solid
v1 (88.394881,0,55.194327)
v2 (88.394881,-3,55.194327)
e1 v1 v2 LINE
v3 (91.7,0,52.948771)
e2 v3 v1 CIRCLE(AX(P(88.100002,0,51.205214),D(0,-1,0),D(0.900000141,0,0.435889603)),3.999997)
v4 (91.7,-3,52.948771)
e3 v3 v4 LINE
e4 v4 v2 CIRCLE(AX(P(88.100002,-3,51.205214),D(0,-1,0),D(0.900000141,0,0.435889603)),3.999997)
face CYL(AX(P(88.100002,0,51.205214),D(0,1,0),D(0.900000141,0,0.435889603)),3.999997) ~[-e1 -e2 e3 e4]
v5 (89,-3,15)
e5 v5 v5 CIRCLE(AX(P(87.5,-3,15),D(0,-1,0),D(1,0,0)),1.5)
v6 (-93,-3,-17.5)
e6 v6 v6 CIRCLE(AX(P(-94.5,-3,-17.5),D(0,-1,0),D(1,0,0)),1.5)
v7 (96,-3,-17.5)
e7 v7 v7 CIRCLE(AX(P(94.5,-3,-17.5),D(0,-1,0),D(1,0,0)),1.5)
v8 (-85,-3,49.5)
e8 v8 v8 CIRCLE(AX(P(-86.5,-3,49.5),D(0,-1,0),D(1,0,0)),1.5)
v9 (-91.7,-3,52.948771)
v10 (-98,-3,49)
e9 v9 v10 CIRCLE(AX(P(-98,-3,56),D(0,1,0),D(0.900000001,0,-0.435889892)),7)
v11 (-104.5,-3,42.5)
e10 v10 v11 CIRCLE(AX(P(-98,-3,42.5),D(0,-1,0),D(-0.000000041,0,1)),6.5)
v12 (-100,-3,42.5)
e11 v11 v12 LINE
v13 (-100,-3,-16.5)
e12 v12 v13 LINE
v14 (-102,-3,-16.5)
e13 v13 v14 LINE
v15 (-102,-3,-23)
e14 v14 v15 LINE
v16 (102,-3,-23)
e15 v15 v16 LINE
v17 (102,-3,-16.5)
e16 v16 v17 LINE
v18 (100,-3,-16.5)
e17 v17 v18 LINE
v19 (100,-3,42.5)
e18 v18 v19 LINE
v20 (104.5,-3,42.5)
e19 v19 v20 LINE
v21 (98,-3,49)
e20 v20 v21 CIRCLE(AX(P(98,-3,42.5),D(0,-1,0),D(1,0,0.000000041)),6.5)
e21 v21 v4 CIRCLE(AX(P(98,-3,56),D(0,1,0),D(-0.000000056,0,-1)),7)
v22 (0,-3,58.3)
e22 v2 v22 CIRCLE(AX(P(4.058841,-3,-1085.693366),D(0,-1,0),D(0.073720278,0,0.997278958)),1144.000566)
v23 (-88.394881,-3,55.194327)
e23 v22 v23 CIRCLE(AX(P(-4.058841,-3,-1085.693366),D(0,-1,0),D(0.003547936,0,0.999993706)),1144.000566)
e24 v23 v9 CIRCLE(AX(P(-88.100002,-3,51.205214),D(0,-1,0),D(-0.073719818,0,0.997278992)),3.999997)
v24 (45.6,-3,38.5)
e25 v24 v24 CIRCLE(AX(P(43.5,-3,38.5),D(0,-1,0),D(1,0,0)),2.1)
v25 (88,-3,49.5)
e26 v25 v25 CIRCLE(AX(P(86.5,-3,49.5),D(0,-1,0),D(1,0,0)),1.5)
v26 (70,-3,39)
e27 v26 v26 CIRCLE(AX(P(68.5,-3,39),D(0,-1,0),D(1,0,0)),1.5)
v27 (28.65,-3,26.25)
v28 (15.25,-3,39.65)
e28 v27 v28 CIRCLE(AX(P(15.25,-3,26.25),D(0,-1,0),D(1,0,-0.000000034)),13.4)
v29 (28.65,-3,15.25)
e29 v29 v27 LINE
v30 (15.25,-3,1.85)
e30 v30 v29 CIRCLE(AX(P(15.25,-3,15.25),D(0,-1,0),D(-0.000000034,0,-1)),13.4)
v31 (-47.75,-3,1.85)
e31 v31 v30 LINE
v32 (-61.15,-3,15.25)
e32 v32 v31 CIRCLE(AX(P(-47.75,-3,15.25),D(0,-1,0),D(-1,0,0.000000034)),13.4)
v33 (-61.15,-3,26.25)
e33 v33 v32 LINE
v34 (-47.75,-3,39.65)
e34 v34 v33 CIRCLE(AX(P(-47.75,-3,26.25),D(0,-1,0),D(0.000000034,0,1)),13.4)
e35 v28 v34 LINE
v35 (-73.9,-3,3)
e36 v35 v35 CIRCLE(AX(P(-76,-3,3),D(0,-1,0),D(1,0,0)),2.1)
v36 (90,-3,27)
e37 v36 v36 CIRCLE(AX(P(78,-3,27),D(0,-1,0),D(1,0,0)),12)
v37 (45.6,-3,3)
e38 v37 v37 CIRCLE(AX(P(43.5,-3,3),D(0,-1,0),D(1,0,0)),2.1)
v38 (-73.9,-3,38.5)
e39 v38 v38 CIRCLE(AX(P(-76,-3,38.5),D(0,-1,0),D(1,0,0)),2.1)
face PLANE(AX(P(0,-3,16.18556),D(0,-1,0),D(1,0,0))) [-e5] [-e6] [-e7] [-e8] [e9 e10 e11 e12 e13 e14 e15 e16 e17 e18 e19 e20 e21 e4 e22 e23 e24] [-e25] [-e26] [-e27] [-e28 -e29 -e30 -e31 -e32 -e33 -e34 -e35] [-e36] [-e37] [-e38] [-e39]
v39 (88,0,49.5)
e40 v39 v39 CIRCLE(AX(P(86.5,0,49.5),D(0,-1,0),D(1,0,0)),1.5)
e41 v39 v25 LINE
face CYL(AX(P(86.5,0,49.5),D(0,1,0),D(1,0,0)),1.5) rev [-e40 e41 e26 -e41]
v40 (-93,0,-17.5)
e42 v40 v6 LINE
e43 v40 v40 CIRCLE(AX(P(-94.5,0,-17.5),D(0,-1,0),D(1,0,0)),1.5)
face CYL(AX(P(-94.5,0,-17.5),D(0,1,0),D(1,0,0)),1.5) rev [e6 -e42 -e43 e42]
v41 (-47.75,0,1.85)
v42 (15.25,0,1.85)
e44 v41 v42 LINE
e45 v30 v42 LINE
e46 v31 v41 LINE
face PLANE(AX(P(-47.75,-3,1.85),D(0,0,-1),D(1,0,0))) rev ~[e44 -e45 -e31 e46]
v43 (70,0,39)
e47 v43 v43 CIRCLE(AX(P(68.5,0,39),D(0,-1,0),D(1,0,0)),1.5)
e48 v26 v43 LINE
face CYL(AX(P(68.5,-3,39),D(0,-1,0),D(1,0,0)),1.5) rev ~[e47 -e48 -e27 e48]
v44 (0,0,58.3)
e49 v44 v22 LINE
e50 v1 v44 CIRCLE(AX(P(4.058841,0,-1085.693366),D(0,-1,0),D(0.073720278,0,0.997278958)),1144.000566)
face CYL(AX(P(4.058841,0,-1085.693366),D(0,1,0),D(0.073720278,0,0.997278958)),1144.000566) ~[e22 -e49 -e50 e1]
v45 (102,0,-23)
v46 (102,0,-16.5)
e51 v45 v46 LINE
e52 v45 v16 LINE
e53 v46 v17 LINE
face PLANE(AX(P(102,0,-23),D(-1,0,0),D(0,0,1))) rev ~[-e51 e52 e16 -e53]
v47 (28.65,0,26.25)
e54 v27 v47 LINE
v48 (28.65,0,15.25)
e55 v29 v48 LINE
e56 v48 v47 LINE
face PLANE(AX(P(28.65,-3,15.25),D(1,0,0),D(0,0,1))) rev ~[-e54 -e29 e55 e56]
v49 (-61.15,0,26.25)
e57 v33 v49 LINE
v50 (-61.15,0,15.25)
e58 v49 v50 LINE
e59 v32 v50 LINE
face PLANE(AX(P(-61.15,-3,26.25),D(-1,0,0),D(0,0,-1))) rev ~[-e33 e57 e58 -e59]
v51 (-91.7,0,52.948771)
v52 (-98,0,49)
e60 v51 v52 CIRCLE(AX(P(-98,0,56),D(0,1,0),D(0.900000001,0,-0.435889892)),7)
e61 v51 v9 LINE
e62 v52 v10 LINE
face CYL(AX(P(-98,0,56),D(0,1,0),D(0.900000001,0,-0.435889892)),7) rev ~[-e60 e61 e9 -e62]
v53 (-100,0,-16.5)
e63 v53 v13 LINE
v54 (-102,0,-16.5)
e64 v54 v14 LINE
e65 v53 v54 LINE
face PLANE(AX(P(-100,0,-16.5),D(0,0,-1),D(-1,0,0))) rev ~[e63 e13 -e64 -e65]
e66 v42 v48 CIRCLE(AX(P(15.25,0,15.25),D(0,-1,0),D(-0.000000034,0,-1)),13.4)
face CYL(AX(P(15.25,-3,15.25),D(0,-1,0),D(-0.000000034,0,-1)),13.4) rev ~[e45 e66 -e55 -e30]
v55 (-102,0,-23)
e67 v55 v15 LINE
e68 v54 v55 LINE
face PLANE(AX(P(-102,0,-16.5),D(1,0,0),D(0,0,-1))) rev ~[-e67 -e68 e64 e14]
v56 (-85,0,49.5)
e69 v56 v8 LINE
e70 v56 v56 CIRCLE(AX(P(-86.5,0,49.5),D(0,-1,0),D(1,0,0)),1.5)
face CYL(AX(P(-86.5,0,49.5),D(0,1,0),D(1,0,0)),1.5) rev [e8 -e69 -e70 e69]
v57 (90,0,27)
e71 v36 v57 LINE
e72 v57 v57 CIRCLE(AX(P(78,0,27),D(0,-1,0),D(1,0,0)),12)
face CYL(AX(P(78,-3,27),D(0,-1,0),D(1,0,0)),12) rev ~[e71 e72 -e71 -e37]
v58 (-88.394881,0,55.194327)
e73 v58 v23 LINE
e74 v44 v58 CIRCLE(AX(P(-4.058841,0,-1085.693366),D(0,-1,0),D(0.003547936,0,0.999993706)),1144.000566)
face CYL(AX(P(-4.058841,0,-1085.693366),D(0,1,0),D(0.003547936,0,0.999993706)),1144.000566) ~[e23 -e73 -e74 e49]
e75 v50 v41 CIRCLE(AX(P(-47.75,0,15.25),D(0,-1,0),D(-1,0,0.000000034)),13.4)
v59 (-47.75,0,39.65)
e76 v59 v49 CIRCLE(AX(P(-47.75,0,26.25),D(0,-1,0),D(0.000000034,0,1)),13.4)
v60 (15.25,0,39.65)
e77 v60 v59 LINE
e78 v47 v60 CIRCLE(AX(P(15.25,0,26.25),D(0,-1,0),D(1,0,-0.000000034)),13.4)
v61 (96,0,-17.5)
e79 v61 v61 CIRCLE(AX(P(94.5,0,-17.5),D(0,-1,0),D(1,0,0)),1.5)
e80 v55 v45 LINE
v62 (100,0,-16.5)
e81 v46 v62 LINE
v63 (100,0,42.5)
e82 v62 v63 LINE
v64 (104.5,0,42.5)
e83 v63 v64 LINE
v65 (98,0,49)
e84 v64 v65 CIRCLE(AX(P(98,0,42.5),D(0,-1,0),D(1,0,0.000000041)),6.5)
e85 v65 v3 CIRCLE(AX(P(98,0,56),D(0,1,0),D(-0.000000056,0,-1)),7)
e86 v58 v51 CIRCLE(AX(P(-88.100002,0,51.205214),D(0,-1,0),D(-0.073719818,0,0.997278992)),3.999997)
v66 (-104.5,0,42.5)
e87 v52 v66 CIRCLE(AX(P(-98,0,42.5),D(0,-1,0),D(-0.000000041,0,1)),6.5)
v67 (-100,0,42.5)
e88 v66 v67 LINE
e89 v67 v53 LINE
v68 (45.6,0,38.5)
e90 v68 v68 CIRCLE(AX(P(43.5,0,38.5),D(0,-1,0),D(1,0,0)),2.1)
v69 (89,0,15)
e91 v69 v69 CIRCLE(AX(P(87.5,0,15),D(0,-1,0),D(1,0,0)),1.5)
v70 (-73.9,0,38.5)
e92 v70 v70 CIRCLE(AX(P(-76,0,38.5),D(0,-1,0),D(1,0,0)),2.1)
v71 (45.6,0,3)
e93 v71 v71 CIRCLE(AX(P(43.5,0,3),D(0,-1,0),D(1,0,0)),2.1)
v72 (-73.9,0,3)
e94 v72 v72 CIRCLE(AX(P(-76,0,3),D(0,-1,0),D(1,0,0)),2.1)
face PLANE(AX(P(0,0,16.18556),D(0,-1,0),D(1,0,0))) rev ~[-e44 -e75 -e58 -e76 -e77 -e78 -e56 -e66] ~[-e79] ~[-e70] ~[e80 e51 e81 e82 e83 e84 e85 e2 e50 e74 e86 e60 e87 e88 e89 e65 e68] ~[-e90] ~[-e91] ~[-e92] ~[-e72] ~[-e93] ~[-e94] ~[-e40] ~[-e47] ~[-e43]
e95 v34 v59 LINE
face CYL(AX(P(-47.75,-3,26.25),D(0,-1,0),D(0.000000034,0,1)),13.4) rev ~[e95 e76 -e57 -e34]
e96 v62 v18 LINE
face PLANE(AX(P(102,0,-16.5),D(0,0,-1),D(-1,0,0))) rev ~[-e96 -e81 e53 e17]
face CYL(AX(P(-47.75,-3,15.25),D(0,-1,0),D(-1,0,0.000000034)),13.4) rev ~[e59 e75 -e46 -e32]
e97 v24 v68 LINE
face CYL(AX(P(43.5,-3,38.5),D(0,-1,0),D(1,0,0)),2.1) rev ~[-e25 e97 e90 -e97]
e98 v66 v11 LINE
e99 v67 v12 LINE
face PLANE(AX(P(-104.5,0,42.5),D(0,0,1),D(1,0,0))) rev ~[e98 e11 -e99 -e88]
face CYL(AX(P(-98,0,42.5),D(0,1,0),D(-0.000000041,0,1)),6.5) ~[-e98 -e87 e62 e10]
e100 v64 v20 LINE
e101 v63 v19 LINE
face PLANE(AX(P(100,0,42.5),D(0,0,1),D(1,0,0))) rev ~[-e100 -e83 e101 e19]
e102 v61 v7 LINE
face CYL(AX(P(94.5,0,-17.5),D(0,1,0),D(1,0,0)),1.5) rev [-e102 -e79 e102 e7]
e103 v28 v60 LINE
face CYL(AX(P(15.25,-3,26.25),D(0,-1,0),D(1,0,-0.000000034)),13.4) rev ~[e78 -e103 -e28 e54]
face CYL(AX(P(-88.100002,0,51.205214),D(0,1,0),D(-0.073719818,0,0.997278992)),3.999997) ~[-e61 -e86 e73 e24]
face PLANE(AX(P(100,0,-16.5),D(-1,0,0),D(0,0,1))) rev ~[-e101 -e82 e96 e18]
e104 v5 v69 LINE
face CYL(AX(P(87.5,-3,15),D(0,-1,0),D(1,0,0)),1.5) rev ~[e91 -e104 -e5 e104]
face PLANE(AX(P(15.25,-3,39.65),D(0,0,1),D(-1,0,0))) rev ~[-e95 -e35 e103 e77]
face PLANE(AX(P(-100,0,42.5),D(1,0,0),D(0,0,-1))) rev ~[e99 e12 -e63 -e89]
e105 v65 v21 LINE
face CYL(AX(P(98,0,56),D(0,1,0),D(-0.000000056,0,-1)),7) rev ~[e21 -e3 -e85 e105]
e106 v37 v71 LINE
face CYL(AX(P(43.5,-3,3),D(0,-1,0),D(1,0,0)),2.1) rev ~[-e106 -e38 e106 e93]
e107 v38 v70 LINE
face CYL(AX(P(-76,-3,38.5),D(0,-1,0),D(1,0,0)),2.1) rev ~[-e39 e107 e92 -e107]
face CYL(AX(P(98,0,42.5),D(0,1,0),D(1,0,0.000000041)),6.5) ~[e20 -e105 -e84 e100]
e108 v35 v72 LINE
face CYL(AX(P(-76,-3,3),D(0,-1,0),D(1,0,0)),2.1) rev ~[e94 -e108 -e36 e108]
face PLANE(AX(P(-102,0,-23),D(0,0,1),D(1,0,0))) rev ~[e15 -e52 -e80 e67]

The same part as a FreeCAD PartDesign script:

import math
import FreeCAD as App
import Part
import Sketcher
from FreeCAD import Vector
Q = App.Units.Quantity

doc = App.newDocument("Part")
params = doc.addObject("Spreadsheet::Sheet", "Params")
for row, (alias, value) in enumerate([
    ("sketch1_diameter", "3 mm"),
    ("sketch1_radius", "7 mm"),
    ("sketch1_radius2", "6.5 mm"),
    ("sketch1_width", "204 mm"),
    ("sketch1_width2", "2 mm"),
    ("pad1_length", "3 mm"),
    ("sketch2_diameter", "24 mm"),
    ("sketch2_diameter2", "3 mm"),
    ("pocket1_length", "25 mm"),
    ("sketch3_diameter", "4.2 mm"),
    ("sketch3_radius", "13.4 mm"),
    ("sketch3_width", "63 mm"),
    ("sketch3_height", "11 mm"),
    ("pocket2_length", "25 mm"),
], start=1):
    params.set(f"A{row}", alias)
    params.set(f"B{row}", "=" + value)
    params.setAlias(f"B{row}", alias)

body = doc.addObject("PartDesign::Body", "Body")

# Sketch on XZ plane
sketch1 = doc.addObject("Sketcher::SketchObject", "Sketch")
body.addObject(sketch1)
sketch1.AttachmentSupport = (doc.XZ_Plane, [""])
sketch1.MapMode = "FlatFace"
sketch1.addGeometry([
    Part.LineSegment(Vector(-102, -16.5, 0), Vector(-102, -23, 0)),  # 0
    Part.LineSegment(Vector(-102, -23, 0), Vector(102, -23, 0)),  # 1
    Part.LineSegment(Vector(102, -23, 0), Vector(102, -16.5, 0)),  # 2
    Part.LineSegment(Vector(102, -16.5, 0), Vector(100, -16.5, 0)),  # 3
    Part.LineSegment(Vector(100, -16.5, 0), Vector(100, 42.5, 0)),  # 4
    Part.LineSegment(Vector(100, 42.5, 0), Vector(104.5, 42.5, 0)),  # 5
    Part.ArcOfCircle(Part.Circle(Vector(98, 42.5, 0), Vector(0, 0, 1), 6.5), math.radians(0), math.radians(90)),  # 6
    Part.ArcOfCircle(Part.Circle(Vector(98, 56, 0), Vector(0, 0, 1), 7), math.radians(-154), math.radians(-90)),  # 7
    Part.ArcOfCircle(Part.Circle(Vector(88.1, 51.2, 0), Vector(0, 0, 1), 4), math.radians(26), math.radians(86)),  # 8
    Part.ArcOfCircle(Part.Circle(Vector(4.1, -1085.7, 0), Vector(0, 0, 1), 1144), math.radians(85.77), math.radians(90.2)),  # 9
    Part.ArcOfCircle(Part.Circle(Vector(-4.1, -1085.7, 0), Vector(0, 0, 1), 1144), math.radians(89.8), math.radians(94.23)),  # 10
    Part.ArcOfCircle(Part.Circle(Vector(-88.1, 51.2, 0), Vector(0, 0, 1), 4), math.radians(94), math.radians(154)),  # 11
    Part.ArcOfCircle(Part.Circle(Vector(-98, 56, 0), Vector(0, 0, 1), 7), math.radians(-90), math.radians(-26)),  # 12
    Part.ArcOfCircle(Part.Circle(Vector(-98, 42.5, 0), Vector(0, 0, 1), 6.5), math.radians(90), math.radians(180)),  # 13
    Part.LineSegment(Vector(-104.5, 42.5, 0), Vector(-100, 42.5, 0)),  # 14
    Part.LineSegment(Vector(-100, 42.5, 0), Vector(-100, -16.5, 0)),  # 15
    Part.LineSegment(Vector(-100, -16.5, 0), Vector(-102, -16.5, 0)),  # 16
    Part.Circle(Vector(-94.5, -17.5, 0), Vector(0, 0, 1), 1.5),  # 17
    Part.Circle(Vector(94.5, -17.5, 0), Vector(0, 0, 1), 1.5),  # 18
    Part.Circle(Vector(-86.5, 49.5, 0), Vector(0, 0, 1), 1.5),  # 19
    Part.Circle(Vector(86.5, 49.5, 0), Vector(0, 0, 1), 1.5),  # 20
], False)
sketch1.addConstraint([
    Sketcher.Constraint("Coincident", 0, 2, 1, 1),
    Sketcher.Constraint("Coincident", 1, 2, 2, 1),
    Sketcher.Constraint("Coincident", 2, 2, 3, 1),
    Sketcher.Constraint("Coincident", 3, 2, 4, 1),
    Sketcher.Constraint("Coincident", 4, 2, 5, 1),
    Sketcher.Constraint("Coincident", 5, 2, 6, 1),
    Sketcher.Constraint("Tangent", 6, 2, 7, 2),
    Sketcher.Constraint("Tangent", 7, 1, 8, 1),
    Sketcher.Constraint("Tangent", 8, 2, 9, 1),
    Sketcher.Constraint("Coincident", 9, 2, 10, 1),
    Sketcher.Constraint("Tangent", 10, 2, 11, 1),
    Sketcher.Constraint("Tangent", 11, 2, 12, 2),
    Sketcher.Constraint("Tangent", 12, 1, 13, 1),
    Sketcher.Constraint("Coincident", 13, 2, 14, 1),
    Sketcher.Constraint("Coincident", 14, 2, 15, 1),
    Sketcher.Constraint("Coincident", 15, 2, 16, 1),
    Sketcher.Constraint("Coincident", 16, 2, 0, 1),
    Sketcher.Constraint("Vertical", 0),
    Sketcher.Constraint("Horizontal", 1),
    Sketcher.Constraint("Vertical", 2),
    Sketcher.Constraint("Horizontal", 3),
    Sketcher.Constraint("Vertical", 4),
    Sketcher.Constraint("Horizontal", 5),
    Sketcher.Constraint("Horizontal", 14),
    Sketcher.Constraint("Vertical", 15),
    Sketcher.Constraint("Horizontal", 16),
    Sketcher.Constraint("Equal", 9, 10),
    Sketcher.Constraint("Equal", 8, 11),
    Sketcher.Constraint("Equal", 7, 12),
    Sketcher.Constraint("Equal", 6, 13),
    Sketcher.Constraint("Equal", 17, 18),
    Sketcher.Constraint("Equal", 18, 19),
    Sketcher.Constraint("Equal", 19, 20),
    Sketcher.Constraint("Symmetric", 9, 3, 10, 3, -2),
    Sketcher.Constraint("Symmetric", 7, 3, 12, 3, -2),
    Sketcher.Constraint("Symmetric", 17, 3, 18, 3, -2),
    Sketcher.Constraint("Symmetric", 19, 3, 20, 3, -2),
    Sketcher.Constraint("Symmetric", 5, 2, 13, 2, -2),
    Sketcher.Constraint("Symmetric", 3, 2, 15, 2, -2),
    Sketcher.Constraint("Horizontal", 13, 3, 4, 2),
    Sketcher.Constraint("Vertical", 6, 3, 7, 3),
    Sketcher.Constraint("Equal", 3, 16),
    Sketcher.Constraint("Diameter", 17, Q("3 mm")),
    Sketcher.Constraint("Radius", 7, Q("7 mm")),
    Sketcher.Constraint("Radius", 6, Q("6.5 mm")),
    Sketcher.Constraint("DistanceX", 1, 1, 1, 2, Q("204 mm")),
    Sketcher.Constraint("DistanceX", 3, 2, 3, 1, Q("2 mm")),
    Sketcher.Constraint("DistanceY", 4, 1, 4, 2, Q("59 mm")),
    Sketcher.Constraint("DistanceX", 5, 1, 5, 2, Q("4.5 mm")),
    Sketcher.Constraint("DistanceY", 0, 2, 0, 1, Q("6.5 mm")),
    Sketcher.Constraint("DistanceY", -1, 1, 7, 3, Q("56 mm")),
    Sketcher.Constraint("DistanceY", 17, 3, 13, 3, Q("60 mm")),
    Sketcher.Constraint("DistanceX", 17, 3, 18, 3, Q("189 mm")),
    Sketcher.Constraint("DistanceY", 13, 3, 19, 3, Q("7 mm")),
    Sketcher.Constraint("DistanceX", 17, 3, 19, 3, Q("8 mm")),
    Sketcher.Constraint("DistanceX", -1, 1, 8, 3, Q("88.100002 mm")),
    Sketcher.Constraint("DistanceX", -1, 1, 7, 1, Q("91.7 mm")),
    Sketcher.Constraint("DistanceY", -1, 1, 9, 2, Q("58.3 mm")),
    Sketcher.Constraint("Radius", 9, Q("1144.000566 mm")),
])
sketch1.setExpression("Constraints[42]", "Params.sketch1_diameter")
sketch1.setExpression("Constraints[43]", "Params.sketch1_radius")
sketch1.setExpression("Constraints[44]", "Params.sketch1_radius2")
sketch1.setExpression("Constraints[45]", "Params.sketch1_width")
sketch1.setExpression("Constraints[46]", "Params.sketch1_width2")
pad1 = doc.addObject("PartDesign::Pad", "Pad")
body.addObject(pad1)
pad1.Profile = sketch1
pad1.setExpression("Length", "Params.pad1_length")

# Sketch on XZ plane
sketch2 = doc.addObject("Sketcher::SketchObject", "Sketch001")
body.addObject(sketch2)
sketch2.AttachmentSupport = (doc.XZ_Plane, [""])
sketch2.MapMode = "FlatFace"
sketch2.AttachmentOffset = App.Placement(Vector(0, 0, 3), App.Rotation())
sketch2.addGeometry([
    Part.Circle(Vector(78, 27, 0), Vector(0, 0, 1), 12),
    Part.Circle(Vector(87.5, 15, 0), Vector(0, 0, 1), 1.5),
    Part.Circle(Vector(68.5, 39, 0), Vector(0, 0, 1), 1.5),
], False)
sketch2.addConstraint([
    Sketcher.Constraint("Equal", 1, 2),
    Sketcher.Constraint("Diameter", 0, Q("24 mm")),
    Sketcher.Constraint("Diameter", 1, Q("3 mm")),
    Sketcher.Constraint("DistanceX", -1, 1, 0, 3, Q("78 mm")),
    Sketcher.Constraint("DistanceY", -1, 1, 0, 3, Q("27 mm")),
    Sketcher.Constraint("DistanceY", -1, 1, 1, 3, Q("15 mm")),
    Sketcher.Constraint("DistanceY", -1, 1, 2, 3, Q("39 mm")),
    Sketcher.Constraint("DistanceX", 2, 3, 1, 3, Q("19 mm")),
    Sketcher.Constraint("DistanceX", -1, 1, 1, 3, Q("87.5 mm")),
])
sketch2.setExpression("Constraints[1]", "Params.sketch2_diameter")
sketch2.setExpression("Constraints[2]", "Params.sketch2_diameter2")
pocket1 = doc.addObject("PartDesign::Pocket", "Pocket")
body.addObject(pocket1)
pocket1.Profile = sketch2
pocket1.setExpression("Length", "Params.pocket1_length")

# Sketch on XZ plane
sketch3 = doc.addObject("Sketcher::SketchObject", "Sketch002")
body.addObject(sketch3)
sketch3.AttachmentSupport = (doc.XZ_Plane, [""])
sketch3.MapMode = "FlatFace"
sketch3.AttachmentOffset = App.Placement(Vector(0, 0, 3), App.Rotation())
sketch3.addGeometry([
    Part.LineSegment(Vector(15.2, 39.6, 0), Vector(-47.8, 39.6, 0)),  # 0
    Part.ArcOfCircle(Part.Circle(Vector(-47.8, 26.3, 0), Vector(0, 0, 1), 13.4), math.radians(90), math.radians(180)),  # 1
    Part.LineSegment(Vector(-61.1, 26.2, 0), Vector(-61.1, 15.2, 0)),  # 2
    Part.ArcOfCircle(Part.Circle(Vector(-47.8, 15.2, 0), Vector(0, 0, 1), 13.4), math.radians(180), math.radians(270)),  # 3
    Part.LineSegment(Vector(-47.8, 1.9, 0), Vector(15.2, 1.9, 0)),  # 4
    Part.ArcOfCircle(Part.Circle(Vector(15.3, 15.2, 0), Vector(0, 0, 1), 13.4), math.radians(-90), math.radians(0)),  # 5
    Part.LineSegment(Vector(28.6, 15.2, 0), Vector(28.6, 26.2, 0)),  # 6
    Part.ArcOfCircle(Part.Circle(Vector(15.3, 26.3, 0), Vector(0, 0, 1), 13.4), math.radians(0), math.radians(90)),  # 7
    Part.Circle(Vector(-76, 38.5, 0), Vector(0, 0, 1), 2.1),  # 8
    Part.Circle(Vector(-76, 3, 0), Vector(0, 0, 1), 2.1),  # 9
    Part.Circle(Vector(43.5, 3, 0), Vector(0, 0, 1), 2.1),  # 10
    Part.Circle(Vector(43.5, 38.5, 0), Vector(0, 0, 1), 2.1),  # 11
], False)
sketch3.addConstraint([
    Sketcher.Constraint("Tangent", 0, 2, 1, 1),
    Sketcher.Constraint("Tangent", 1, 2, 2, 1),
    Sketcher.Constraint("Tangent", 2, 2, 3, 1),
    Sketcher.Constraint("Tangent", 3, 2, 4, 1),
    Sketcher.Constraint("Tangent", 4, 2, 5, 1),
    Sketcher.Constraint("Tangent", 5, 2, 6, 1),
    Sketcher.Constraint("Tangent", 6, 2, 7, 1),
    Sketcher.Constraint("Tangent", 7, 2, 0, 1),
    Sketcher.Constraint("Horizontal", 0),
    Sketcher.Constraint("Vertical", 2),
    Sketcher.Constraint("Horizontal", 4),
    Sketcher.Constraint("Vertical", 6),
    Sketcher.Constraint("Equal", 1, 3),
    Sketcher.Constraint("Equal", 3, 5),
    Sketcher.Constraint("Equal", 5, 7),
    Sketcher.Constraint("Equal", 8, 9),
    Sketcher.Constraint("Equal", 9, 10),
    Sketcher.Constraint("Equal", 10, 11),
    Sketcher.Constraint("Horizontal", 9, 3, 10, 3),
    Sketcher.Constraint("Horizontal", 8, 3, 11, 3),
    Sketcher.Constraint("Vertical", 8, 3, 9, 3),
    Sketcher.Constraint("Vertical", 10, 3, 11, 3),
    Sketcher.Constraint("Diameter", 8, Q("4.2 mm")),
    Sketcher.Constraint("Radius", 1, Q("13.4 mm")),
    Sketcher.Constraint("DistanceX", 0, 2, 0, 1, Q("63 mm")),
    Sketcher.Constraint("DistanceY", 2, 2, 2, 1, Q("11 mm")),
    Sketcher.Constraint("DistanceX", 8, 3, -1, 1, Q("76 mm")),
    Sketcher.Constraint("DistanceY", -1, 1, 9, 3, Q("3 mm")),
    Sketcher.Constraint("DistanceY", -1, 1, 8, 3, Q("38.5 mm")),
    Sketcher.Constraint("DistanceX", -1, 1, 10, 3, Q("43.5 mm")),
    Sketcher.Constraint("DistanceX", 1, 3, -1, 1, Q("47.75 mm")),
    Sketcher.Constraint("DistanceY", -1, 1, 1, 3, Q("26.25 mm")),
])
sketch3.setExpression("Constraints[22]", "Params.sketch3_diameter")
sketch3.setExpression("Constraints[23]", "Params.sketch3_radius")
sketch3.setExpression("Constraints[24]", "Params.sketch3_width")
sketch3.setExpression("Constraints[25]", "Params.sketch3_height")
pocket2 = doc.addObject("PartDesign::Pocket", "Pocket001")
body.addObject(pocket2)
pocket2.Profile = sketch3
pocket2.setExpression("Length", "Params.pocket2_length")

doc.recompute()
